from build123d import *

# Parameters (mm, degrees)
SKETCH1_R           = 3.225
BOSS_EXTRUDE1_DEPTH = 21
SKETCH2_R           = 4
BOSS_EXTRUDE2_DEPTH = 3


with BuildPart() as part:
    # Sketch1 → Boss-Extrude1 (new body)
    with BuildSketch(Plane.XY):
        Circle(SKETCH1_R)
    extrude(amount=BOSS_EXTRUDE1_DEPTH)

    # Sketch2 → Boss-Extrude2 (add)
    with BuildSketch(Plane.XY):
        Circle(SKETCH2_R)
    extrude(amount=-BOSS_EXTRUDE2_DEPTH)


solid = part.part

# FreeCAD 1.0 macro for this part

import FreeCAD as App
import Part
import Sketcher
from FreeCAD import Vector

doc = App.newDocument("Part")
params = doc.addObject("Spreadsheet::Sheet", "Params")
for row, (alias, value) in enumerate([
    ("sketch1_diameter", "6.45 mm"),
    ("pad1_length", "21 mm"),
    ("sketch2_diameter", "8 mm"),
    ("pad2_length", "3 mm"),
], start=1):
    params.set(f"A{row}", alias)
    params.set(f"B{row}", "=" + value)
    params.setAlias(f"B{row}", alias)

body = doc.addObject("PartDesign::Body", "Body")

sketch1 = body.newObject("Sketcher::SketchObject", "Sketch")
sketch1.AttachmentSupport = (doc.getObject("XY_Plane"), [""])
sketch1.MapMode = "FlatFace"
sketch1.addGeometry(Part.Circle(Vector(0, 0, 0), Vector(0, 0, 1), 3.2), False)
sketch1.addConstraint(Sketcher.Constraint("Coincident", 0, 3, -1, 1))
sketch1.addConstraint(Sketcher.Constraint("Diameter", 0, 6.45))
sketch1.setExpression("Constraints[1]", "Params.sketch1_diameter")
pad1 = body.newObject("PartDesign::Pad", "Pad")
pad1.Profile = sketch1
pad1.setExpression("Length", "Params.pad1_length")

sketch2 = body.newObject("Sketcher::SketchObject", "Sketch001")
sketch2.AttachmentSupport = (doc.getObject("XY_Plane"), [""])
sketch2.MapMode = "FlatFace"
sketch2.addGeometry(Part.Circle(Vector(0, 0, 0), Vector(0, 0, 1), 4), False)
sketch2.addConstraint(Sketcher.Constraint("Coincident", 0, 3, -1, 1))
sketch2.addConstraint(Sketcher.Constraint("Diameter", 0, 8.0))
sketch2.setExpression("Constraints[1]", "Params.sketch2_diameter")
pad2 = body.newObject("PartDesign::Pad", "Pad001")
pad2.Profile = sketch2
pad2.setExpression("Length", "Params.pad2_length")
pad2.Reversed = True

doc.recompute()
